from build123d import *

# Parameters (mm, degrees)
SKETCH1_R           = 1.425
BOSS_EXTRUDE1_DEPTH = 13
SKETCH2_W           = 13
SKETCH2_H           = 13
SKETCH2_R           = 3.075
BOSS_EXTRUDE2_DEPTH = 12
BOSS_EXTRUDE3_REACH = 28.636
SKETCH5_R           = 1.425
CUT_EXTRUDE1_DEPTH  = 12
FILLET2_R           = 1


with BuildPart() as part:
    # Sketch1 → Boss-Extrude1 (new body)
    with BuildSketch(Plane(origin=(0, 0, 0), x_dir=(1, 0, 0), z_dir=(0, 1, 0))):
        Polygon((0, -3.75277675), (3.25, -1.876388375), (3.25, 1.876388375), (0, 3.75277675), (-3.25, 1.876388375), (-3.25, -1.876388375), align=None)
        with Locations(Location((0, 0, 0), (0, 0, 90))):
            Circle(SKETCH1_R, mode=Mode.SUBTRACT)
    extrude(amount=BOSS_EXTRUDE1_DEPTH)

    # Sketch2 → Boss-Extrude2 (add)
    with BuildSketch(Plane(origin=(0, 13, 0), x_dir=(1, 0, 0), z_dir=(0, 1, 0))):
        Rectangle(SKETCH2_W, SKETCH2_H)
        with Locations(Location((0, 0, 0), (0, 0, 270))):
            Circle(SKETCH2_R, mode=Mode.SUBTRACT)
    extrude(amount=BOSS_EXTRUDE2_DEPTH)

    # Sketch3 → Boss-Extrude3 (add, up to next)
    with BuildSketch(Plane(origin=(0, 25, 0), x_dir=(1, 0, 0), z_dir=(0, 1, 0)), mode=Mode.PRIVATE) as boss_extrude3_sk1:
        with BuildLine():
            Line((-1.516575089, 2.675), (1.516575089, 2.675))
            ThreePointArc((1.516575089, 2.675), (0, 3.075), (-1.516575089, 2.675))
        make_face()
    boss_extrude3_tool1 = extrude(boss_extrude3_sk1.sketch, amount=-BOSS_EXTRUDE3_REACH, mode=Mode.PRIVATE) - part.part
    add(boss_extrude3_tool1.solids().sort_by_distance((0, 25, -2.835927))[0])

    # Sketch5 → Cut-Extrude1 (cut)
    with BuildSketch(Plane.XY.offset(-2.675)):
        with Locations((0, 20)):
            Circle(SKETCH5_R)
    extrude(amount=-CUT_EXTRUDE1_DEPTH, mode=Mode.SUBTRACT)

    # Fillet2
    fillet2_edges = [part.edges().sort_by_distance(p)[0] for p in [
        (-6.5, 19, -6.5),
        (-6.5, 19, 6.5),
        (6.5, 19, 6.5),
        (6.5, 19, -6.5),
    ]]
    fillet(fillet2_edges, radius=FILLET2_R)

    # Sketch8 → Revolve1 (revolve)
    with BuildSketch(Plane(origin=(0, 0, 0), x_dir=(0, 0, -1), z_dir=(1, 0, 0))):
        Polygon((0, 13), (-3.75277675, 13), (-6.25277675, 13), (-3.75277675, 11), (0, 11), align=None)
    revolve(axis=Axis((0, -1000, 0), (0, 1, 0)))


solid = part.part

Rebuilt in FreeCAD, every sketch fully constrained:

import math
import FreeCAD as App
import Part
import Sketcher
Q = App.Units.Quantity


def edges_at(feature, points):
    """Names of the edges that pass closest to the given points."""
    edges = feature.Shape.Edges
    near = lambda p: min(range(len(edges)), key=lambda i: edges[i].distToShape(Part.Vertex(*p))[0])
    return sorted({f"Edge{near(p) + 1}" for p in points})


def add_polygon(sketch, points):
    """Adds a closed chain of lines whose ends are joined by coincident constraints."""
    first, n = sketch.GeometryCount, len(points)
    for a, b in zip(points, points[1:] + points[:1]):
        sketch.addGeometry(Part.LineSegment(App.Vector(*a, 0), App.Vector(*b, 0)), False)
    for i in range(n):
        sketch.addConstraint(Sketcher.Constraint("Coincident", first + i, 2, first + (i + 1) % n, 1))

doc = App.newDocument("Part")
body = doc.addObject("PartDesign::Body", "Body")

sketch1 = doc.addObject("Sketcher::SketchObject", "Sketch")
body.addObject(sketch1)
sketch1.AttachmentSupport = (doc.XZ_Plane, [""])
sketch1.MapMode = "FlatFace"
add_polygon(sketch1, [(0, 3.8), (3.2, 1.9), (3.2, -1.9), (0, -3.8), (-3.2, -1.9), (-3.2, 1.9)])
sketch1.addGeometry(Part.Circle(App.Vector(0, 0, 0), App.Vector(0, 0, 1), 1.4), False)
sketch1.addConstraint(Sketcher.Constraint("Vertical", 1))
sketch1.addConstraint(Sketcher.Constraint("Vertical", 4))
sketch1.addConstraint(Sketcher.Constraint("Coincident", 6, 3, -1, 1))
sketch1.addConstraint(Sketcher.Constraint("Symmetric", 0, 2, 3, 2, -1, 1))
sketch1.addConstraint(Sketcher.Constraint("Symmetric", 2, 2, 5, 2, -1, 1))
sketch1.addConstraint(Sketcher.Constraint("PointOnObject", 2, 2, -2))
sketch1.addConstraint(Sketcher.Constraint("Parallel", 2, 5))
sketch1.addConstraint(Sketcher.Constraint("Horizontal", 1, 2, 3, 2))
sketch1.addConstraint(Sketcher.Constraint("Diameter", 6, Q("2.85 mm")))
sketch1.addConstraint(Sketcher.Constraint("Angle", 0, Q("-30 deg")))
sketch1.addConstraint(Sketcher.Constraint("DistanceX", 3, 2, 1, 2, Q("6.5 mm")))
sketch1.addConstraint(Sketcher.Constraint("DistanceY", 1, 2, 1, 1, Q("3.752777 mm")))
pad1 = doc.addObject("PartDesign::Pad", "Pad")
body.addObject(pad1)
pad1.Profile = sketch1
pad1.Length = 13
pad1.Reversed = True

sketch2 = doc.addObject("Sketcher::SketchObject", "Sketch001")
body.addObject(sketch2)
sketch2.AttachmentSupport = (doc.XZ_Plane, [""])
sketch2.MapMode = "FlatFace"
sketch2.AttachmentOffset = App.Placement(App.Vector(0, 0, -13), App.Rotation())
add_polygon(sketch2, [(-6.5, -6.5), (-6.5, 6.5), (6.5, 6.5), (6.5, -6.5)])
sketch2.addGeometry(Part.Circle(App.Vector(0, 0, 0), App.Vector(0, 0, 1), 3.1), False)
sketch2.addConstraint(Sketcher.Constraint("Vertical", 0))
sketch2.addConstraint(Sketcher.Constraint("Horizontal", 1))
sketch2.addConstraint(Sketcher.Constraint("Vertical", 2))
sketch2.addConstraint(Sketcher.Constraint("Horizontal", 3))
sketch2.addConstraint(Sketcher.Constraint("Coincident", 4, 3, -1, 1))
sketch2.addConstraint(Sketcher.Constraint("Symmetric", 0, 2, 2, 2, -1, 1))
sketch2.addConstraint(Sketcher.Constraint("Equal", 3, 0))
sketch2.addConstraint(Sketcher.Constraint("Diameter", 4, Q("6.15 mm")))
sketch2.addConstraint(Sketcher.Constraint("DistanceX", 1, 1, 1, 2, Q("13 mm")))
pad2 = doc.addObject("PartDesign::Pad", "Pad001")
body.addObject(pad2)
pad2.Profile = sketch2
pad2.Length = 12
pad2.Reversed = True

sketch3 = doc.addObject("Sketcher::SketchObject", "Sketch002")
body.addObject(sketch3)
sketch3.AttachmentSupport = (doc.XZ_Plane, [""])
sketch3.MapMode = "FlatFace"
sketch3.AttachmentOffset = App.Placement(App.Vector(0, 0, -25), App.Rotation())
sketch3.addGeometry(Part.LineSegment(App.Vector(-1.5, -2.7, 0), App.Vector(1.5, -2.7, 0)), False)
sketch3.addGeometry(Part.ArcOfCircle(Part.Circle(App.Vector(0, 0, 0), App.Vector(0, 0, 1), 3.1), math.radians(-120), math.radians(-60)), False)
sketch3.addConstraint(Sketcher.Constraint("Coincident", 0, 1, 1, 1))
sketch3.addConstraint(Sketcher.Constraint("Coincident", 1, 2, 0, 2))
sketch3.addConstraint(Sketcher.Constraint("Horizontal", 0))
sketch3.addConstraint(Sketcher.Constraint("Coincident", 1, 3, -1, 1))
sketch3.addConstraint(Sketcher.Constraint("Radius", 1, Q("3.075 mm")))
sketch3.addConstraint(Sketcher.Constraint("DistanceY", 0, 1, -1, 1, Q("2.675 mm")))
pad3 = doc.addObject("PartDesign::Pad", "Pad002")
body.addObject(pad3)
pad3.Profile = sketch3
pad3.Type = "UpToFirst"

sketch4 = doc.addObject("Sketcher::SketchObject", "Sketch003")
body.addObject(sketch4)
sketch4.AttachmentSupport = (doc.XY_Plane, [""])
sketch4.MapMode = "FlatFace"
sketch4.AttachmentOffset = App.Placement(App.Vector(0, 0, -2.675), App.Rotation())
sketch4.addGeometry(Part.Circle(App.Vector(0, 20, 0), App.Vector(0, 0, 1), 1.4), False)
sketch4.addConstraint(Sketcher.Constraint("PointOnObject", 0, 3, -2))
sketch4.addConstraint(Sketcher.Constraint("Diameter", 0, Q("2.85 mm")))
sketch4.addConstraint(Sketcher.Constraint("DistanceY", -1, 1, 0, 3, Q("20 mm")))
pocket1 = doc.addObject("PartDesign::Pocket", "Pocket")
body.addObject(pocket1)
pocket1.Profile = sketch4
pocket1.Length = 12
doc.recompute()

fillet = doc.addObject("PartDesign::Fillet", "Fillet")
body.addObject(fillet)
fillet.Base = (pocket1, edges_at(pocket1, [
    (-6.5, 19, -6.5),
    (-6.5, 19, 6.5),
    (6.5, 19, 6.5),
    (6.5, 19, -6.5),
]))
fillet.Radius = 1

sketch5 = doc.addObject("Sketcher::SketchObject", "Sketch004")
body.addObject(sketch5)
sketch5.AttachmentSupport = (doc.YZ_Plane, [""])
sketch5.MapMode = "FlatFace"
add_polygon(sketch5, [(13, 0), (13, 6.3), (11, 3.8), (11, 0)])
sketch5.addConstraint(Sketcher.Constraint("Vertical", 0))
sketch5.addConstraint(Sketcher.Constraint("Vertical", 2))
sketch5.addConstraint(Sketcher.Constraint("Horizontal", 3))
sketch5.addConstraint(Sketcher.Constraint("PointOnObject", 2, 2, -1))
sketch5.addConstraint(Sketcher.Constraint("DistanceX", 3, 1, 3, 2, Q("2 mm")))
sketch5.addConstraint(Sketcher.Constraint("DistanceX", -1, 1, 0, 2, Q("13 mm")))
sketch5.addConstraint(Sketcher.Constraint("DistanceY", 1, 2, 0, 2, Q("2.5 mm")))
sketch5.addConstraint(Sketcher.Constraint("DistanceY", 0, 1, 0, 2, Q("6.252777 mm")))
revolution = doc.addObject("PartDesign::Revolution", "Revolution")
body.addObject(revolution)
revolution.Profile = sketch5
revolution.ReferenceAxis = (sketch5, ["H_Axis"])
revolution.Angle = 360

doc.recompute()
